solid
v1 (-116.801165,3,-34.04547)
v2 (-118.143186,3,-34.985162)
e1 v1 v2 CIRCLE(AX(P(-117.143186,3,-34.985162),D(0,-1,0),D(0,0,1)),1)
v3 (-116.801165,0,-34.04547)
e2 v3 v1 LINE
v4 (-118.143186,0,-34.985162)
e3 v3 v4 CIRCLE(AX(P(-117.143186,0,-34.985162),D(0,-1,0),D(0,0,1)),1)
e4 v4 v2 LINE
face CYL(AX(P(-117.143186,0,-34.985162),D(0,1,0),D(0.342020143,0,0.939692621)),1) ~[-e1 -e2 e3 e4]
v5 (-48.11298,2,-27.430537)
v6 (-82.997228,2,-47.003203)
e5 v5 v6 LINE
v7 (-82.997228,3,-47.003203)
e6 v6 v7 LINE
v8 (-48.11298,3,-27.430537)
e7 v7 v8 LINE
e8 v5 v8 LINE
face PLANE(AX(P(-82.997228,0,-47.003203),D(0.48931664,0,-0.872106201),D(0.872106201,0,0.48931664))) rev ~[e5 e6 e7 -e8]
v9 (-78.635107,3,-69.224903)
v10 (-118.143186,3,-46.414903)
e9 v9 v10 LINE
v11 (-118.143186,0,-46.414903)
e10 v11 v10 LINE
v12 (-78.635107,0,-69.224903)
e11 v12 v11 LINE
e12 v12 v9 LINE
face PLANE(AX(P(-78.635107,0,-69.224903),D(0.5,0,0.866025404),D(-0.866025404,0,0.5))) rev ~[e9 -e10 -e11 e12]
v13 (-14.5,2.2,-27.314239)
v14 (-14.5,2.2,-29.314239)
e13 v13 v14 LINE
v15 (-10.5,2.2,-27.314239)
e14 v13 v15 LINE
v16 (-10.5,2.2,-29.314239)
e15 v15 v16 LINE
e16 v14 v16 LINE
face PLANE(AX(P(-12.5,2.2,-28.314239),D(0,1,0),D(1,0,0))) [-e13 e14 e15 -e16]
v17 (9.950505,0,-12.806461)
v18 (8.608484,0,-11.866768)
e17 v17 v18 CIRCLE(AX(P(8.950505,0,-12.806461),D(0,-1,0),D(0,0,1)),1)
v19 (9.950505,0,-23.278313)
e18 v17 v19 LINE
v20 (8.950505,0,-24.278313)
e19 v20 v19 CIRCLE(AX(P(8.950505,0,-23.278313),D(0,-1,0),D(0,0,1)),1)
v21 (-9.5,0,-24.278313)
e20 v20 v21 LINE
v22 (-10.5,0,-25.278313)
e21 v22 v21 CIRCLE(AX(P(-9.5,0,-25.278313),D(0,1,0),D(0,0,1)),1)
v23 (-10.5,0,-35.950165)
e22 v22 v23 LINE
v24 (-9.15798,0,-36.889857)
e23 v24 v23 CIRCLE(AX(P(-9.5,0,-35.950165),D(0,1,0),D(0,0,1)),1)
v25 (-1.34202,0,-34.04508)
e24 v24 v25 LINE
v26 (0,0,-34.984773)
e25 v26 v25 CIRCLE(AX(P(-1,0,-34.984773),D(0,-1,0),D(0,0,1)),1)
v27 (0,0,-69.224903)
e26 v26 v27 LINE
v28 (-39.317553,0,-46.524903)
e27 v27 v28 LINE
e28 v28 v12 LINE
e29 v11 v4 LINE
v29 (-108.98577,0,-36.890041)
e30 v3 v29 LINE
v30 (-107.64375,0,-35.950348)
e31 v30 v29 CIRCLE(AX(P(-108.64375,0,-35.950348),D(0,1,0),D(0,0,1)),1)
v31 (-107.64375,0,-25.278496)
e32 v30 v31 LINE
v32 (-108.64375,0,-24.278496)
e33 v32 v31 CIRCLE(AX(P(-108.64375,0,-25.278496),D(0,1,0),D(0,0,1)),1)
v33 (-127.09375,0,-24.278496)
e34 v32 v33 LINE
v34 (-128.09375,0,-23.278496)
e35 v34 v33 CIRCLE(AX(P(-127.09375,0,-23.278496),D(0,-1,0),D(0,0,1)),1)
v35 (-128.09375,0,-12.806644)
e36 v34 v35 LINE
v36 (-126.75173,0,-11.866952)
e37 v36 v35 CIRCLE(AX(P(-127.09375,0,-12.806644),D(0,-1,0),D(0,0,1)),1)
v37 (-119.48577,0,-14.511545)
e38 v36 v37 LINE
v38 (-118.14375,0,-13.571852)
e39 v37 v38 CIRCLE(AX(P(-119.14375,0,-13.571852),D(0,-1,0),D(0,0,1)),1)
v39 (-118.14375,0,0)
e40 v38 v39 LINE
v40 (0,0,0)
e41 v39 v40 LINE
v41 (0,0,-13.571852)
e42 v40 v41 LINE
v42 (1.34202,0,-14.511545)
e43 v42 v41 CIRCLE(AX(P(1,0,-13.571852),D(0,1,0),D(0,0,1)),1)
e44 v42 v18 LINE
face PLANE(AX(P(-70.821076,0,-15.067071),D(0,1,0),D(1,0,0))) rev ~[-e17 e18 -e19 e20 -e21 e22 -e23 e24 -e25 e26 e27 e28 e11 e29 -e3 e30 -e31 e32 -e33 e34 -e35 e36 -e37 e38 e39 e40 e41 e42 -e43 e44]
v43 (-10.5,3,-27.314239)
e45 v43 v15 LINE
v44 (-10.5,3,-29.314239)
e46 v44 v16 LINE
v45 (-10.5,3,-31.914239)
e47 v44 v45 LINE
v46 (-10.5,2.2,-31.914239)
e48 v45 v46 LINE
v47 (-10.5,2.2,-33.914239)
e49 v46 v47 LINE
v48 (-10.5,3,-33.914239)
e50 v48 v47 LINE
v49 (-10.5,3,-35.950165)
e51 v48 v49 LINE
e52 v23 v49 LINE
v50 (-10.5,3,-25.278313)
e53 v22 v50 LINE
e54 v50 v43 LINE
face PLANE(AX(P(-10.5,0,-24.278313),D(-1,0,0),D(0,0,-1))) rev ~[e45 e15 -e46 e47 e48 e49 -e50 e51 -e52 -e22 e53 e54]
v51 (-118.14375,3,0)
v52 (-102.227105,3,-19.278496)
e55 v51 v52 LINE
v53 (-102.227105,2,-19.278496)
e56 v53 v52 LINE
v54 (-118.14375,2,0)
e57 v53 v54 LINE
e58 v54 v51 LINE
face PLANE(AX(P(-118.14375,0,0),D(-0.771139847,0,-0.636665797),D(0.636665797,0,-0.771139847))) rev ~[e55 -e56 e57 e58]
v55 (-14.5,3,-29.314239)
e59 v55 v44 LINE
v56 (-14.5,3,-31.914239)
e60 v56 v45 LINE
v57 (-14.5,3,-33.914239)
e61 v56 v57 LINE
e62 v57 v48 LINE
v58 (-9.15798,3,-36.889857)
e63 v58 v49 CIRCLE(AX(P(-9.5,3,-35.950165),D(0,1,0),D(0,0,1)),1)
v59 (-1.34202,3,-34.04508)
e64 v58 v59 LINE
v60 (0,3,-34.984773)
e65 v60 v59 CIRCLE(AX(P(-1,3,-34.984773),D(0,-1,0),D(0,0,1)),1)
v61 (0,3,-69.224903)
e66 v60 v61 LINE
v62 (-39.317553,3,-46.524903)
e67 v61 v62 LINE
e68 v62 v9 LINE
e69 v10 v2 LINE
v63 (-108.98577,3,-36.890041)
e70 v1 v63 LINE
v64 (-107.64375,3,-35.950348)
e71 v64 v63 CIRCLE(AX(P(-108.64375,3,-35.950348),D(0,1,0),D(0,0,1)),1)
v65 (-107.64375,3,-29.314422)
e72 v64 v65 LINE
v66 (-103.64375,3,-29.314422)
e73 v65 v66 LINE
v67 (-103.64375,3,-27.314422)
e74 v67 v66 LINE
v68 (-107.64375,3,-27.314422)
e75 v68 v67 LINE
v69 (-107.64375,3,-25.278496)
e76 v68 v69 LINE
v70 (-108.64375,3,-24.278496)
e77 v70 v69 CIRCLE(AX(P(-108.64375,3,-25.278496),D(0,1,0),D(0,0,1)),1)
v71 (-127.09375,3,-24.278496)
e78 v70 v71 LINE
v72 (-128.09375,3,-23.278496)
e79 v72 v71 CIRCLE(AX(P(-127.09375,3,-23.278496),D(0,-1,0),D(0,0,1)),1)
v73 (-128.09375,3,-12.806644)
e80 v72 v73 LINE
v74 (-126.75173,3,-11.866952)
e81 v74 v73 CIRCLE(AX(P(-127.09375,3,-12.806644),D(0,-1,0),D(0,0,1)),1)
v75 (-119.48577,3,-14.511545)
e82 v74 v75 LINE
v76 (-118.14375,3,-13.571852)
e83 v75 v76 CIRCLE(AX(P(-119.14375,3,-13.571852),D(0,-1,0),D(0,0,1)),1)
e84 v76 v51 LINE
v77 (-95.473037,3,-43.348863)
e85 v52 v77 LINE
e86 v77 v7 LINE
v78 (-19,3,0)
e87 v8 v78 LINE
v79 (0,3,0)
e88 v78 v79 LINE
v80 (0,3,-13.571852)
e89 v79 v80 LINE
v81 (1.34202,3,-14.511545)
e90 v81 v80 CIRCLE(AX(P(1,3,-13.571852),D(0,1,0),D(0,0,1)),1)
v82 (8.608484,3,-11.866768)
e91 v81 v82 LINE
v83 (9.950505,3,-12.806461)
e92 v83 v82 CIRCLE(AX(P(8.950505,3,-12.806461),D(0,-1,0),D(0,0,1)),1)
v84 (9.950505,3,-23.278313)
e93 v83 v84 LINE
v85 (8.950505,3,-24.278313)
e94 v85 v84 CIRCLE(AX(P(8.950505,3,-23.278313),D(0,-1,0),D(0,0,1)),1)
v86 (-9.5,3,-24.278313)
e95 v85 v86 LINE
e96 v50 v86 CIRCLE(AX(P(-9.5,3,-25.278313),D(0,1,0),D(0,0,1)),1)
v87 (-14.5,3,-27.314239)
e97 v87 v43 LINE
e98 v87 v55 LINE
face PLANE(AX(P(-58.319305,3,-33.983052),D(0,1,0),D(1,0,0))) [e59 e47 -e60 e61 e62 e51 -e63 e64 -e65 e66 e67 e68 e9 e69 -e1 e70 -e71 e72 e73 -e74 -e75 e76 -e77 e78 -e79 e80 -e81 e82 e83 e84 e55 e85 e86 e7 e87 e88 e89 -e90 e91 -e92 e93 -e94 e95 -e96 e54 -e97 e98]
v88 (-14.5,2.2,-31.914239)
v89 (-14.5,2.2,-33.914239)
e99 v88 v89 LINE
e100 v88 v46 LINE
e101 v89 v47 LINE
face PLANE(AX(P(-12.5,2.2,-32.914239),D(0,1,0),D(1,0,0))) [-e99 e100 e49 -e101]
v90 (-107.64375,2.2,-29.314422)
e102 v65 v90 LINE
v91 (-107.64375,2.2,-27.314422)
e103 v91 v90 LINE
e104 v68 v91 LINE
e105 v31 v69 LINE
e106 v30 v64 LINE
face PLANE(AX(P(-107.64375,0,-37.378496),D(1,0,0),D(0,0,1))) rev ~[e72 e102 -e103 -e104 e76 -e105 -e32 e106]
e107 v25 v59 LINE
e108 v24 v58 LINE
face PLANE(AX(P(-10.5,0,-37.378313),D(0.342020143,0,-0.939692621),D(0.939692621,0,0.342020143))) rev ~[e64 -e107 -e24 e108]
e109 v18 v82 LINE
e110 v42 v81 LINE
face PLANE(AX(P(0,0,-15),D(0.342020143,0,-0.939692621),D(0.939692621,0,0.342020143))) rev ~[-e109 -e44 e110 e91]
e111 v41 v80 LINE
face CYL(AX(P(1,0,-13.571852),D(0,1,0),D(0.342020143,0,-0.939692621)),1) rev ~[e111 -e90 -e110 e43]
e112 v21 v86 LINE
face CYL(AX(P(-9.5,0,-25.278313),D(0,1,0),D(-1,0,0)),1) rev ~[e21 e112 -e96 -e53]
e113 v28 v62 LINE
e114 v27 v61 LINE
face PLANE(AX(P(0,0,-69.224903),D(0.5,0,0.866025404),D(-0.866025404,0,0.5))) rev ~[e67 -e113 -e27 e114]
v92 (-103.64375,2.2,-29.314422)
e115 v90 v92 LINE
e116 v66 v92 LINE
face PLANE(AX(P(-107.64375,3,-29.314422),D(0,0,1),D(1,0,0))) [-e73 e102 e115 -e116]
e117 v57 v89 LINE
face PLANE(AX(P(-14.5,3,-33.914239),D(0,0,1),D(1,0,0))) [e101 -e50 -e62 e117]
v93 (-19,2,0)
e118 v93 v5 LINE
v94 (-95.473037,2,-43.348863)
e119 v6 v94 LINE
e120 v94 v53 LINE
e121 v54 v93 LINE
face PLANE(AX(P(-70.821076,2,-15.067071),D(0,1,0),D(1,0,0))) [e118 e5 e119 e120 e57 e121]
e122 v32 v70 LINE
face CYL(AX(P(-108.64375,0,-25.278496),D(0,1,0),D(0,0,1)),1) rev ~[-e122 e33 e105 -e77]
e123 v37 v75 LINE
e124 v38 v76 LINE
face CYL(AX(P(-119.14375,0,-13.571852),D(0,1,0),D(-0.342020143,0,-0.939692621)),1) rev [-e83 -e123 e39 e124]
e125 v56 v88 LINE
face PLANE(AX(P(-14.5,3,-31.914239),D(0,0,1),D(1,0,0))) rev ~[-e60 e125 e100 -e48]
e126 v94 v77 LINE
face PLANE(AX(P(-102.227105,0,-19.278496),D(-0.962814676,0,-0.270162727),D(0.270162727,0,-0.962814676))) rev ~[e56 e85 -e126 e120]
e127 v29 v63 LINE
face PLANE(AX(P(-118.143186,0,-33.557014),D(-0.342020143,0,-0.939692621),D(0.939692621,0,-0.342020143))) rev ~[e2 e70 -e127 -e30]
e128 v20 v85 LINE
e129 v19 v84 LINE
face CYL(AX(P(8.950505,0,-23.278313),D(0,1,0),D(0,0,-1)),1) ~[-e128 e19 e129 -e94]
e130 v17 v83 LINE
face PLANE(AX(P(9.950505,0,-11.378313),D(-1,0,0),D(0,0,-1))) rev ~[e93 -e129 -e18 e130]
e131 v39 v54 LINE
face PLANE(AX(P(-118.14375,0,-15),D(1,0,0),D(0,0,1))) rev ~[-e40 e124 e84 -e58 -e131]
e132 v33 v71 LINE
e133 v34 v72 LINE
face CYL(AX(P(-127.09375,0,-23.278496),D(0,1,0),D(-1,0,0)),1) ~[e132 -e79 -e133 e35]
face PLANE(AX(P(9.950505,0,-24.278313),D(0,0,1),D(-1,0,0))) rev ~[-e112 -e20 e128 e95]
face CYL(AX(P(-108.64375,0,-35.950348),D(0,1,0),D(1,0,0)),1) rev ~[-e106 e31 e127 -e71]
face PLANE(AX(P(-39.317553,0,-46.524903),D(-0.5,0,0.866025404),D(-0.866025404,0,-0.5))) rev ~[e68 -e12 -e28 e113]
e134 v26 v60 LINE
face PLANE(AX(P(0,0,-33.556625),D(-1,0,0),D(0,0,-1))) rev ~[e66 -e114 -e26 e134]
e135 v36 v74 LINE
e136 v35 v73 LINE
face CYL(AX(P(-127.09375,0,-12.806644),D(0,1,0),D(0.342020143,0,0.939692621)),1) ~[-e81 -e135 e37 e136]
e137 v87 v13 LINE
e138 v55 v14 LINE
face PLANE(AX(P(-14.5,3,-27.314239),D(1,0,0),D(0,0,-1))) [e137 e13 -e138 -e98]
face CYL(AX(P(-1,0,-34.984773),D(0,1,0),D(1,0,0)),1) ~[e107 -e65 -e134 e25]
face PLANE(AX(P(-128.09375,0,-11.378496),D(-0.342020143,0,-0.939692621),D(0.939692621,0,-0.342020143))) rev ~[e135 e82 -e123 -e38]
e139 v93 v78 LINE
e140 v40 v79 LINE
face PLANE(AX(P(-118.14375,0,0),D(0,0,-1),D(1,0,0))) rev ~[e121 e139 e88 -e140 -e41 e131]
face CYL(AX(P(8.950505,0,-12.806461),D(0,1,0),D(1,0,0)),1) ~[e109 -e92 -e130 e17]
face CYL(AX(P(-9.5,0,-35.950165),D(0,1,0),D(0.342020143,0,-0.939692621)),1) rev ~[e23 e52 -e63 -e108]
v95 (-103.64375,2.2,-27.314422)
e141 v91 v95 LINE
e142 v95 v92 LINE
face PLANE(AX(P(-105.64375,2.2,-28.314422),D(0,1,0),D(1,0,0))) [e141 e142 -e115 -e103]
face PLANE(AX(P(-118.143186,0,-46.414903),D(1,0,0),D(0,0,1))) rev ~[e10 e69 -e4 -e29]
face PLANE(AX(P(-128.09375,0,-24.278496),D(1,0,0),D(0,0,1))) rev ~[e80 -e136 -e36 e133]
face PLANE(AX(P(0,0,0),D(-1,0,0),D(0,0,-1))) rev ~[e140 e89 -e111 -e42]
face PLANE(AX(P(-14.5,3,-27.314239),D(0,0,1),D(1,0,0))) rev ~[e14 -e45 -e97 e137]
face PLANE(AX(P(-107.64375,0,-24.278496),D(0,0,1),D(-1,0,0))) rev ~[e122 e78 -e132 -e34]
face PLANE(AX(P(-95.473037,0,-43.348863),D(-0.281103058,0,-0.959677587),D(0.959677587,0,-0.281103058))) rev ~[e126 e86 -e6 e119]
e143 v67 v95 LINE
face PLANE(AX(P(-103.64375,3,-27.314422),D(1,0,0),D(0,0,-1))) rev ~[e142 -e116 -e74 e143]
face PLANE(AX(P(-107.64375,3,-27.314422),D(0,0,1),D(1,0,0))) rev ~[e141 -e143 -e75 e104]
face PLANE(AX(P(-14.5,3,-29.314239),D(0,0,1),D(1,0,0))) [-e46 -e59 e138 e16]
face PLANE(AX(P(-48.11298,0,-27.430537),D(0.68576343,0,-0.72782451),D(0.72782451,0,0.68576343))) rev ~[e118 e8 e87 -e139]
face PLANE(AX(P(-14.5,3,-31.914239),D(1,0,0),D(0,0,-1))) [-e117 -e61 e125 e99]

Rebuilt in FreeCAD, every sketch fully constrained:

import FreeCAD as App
import Part
import Sketcher

V = App.Vector
Q = App.Units.Quantity


def edges_at(feature, points):
    """Names of the edges that pass closest to the given points."""
    edges = feature.Shape.Edges
    near = lambda p: min(range(len(edges)), key=lambda i: edges[i].distToShape(Part.Vertex(*p))[0])
    return sorted({f"Edge{near(p) + 1}" for p in points})


def add_polygon(sketch, points):
    """Adds a closed chain of lines whose ends are joined by coincident constraints."""
    first, n = sketch.GeometryCount, len(points)
    for a, b in zip(points, points[1:] + points[:1]):
        sketch.addGeometry(Part.LineSegment(App.Vector(*a, 0), App.Vector(*b, 0)), False)
    for i in range(n):
        sketch.addConstraint(Sketcher.Constraint("Coincident", first + i, 2, first + (i + 1) % n, 1))

doc = App.newDocument("Part")
body = doc.addObject("PartDesign::Body", "Body")

sketch1 = body.newObject("Sketcher::SketchObject", "Sketch")
sketch1.AttachmentSupport = (doc.getObject("XZ_Plane"), [""])
sketch1.MapMode = "FlatFace"
add_polygon(sketch1, [(-118.14375, -15), (-118.14375, 0), (-102.227105, -19.278496), (-95.473037, -43.348863), (-82.997228, -47.003203), (-48.11298, -27.430537), (-19, 0), (0, 0), (0, -15), (9.950505, -11.378313), (9.950505, -24.278313), (-10.5, -24.278313), (-10.5, -37.378313), (0, -33.556625), (0, -69.224903), (-39.317553, -46.524903), (-78.635107, -69.224903), (-118.143186, -46.414903), (-118.143186, -33.557014), (-107.64375, -37.378496), (-107.64375, -24.278496), (-128.09375, -24.278496), (-128.09375, -11.378496)])
sketch1.addConstraint([
    Sketcher.Constraint("Vertical", 0),
    Sketcher.Constraint("Horizontal", 6),
    Sketcher.Constraint("Vertical", 7),
    Sketcher.Constraint("Vertical", 9),
    Sketcher.Constraint("Horizontal", 10),
    Sketcher.Constraint("Vertical", 11),
    Sketcher.Constraint("Vertical", 13),
    Sketcher.Constraint("Vertical", 17),
    Sketcher.Constraint("Vertical", 19),
    Sketcher.Constraint("Horizontal", 20),
    Sketcher.Constraint("Vertical", 21),
    Sketcher.Constraint("Coincident", 6, 2, -1, 1),
    Sketcher.Constraint("PointOnObject", 0, 2, -1),
    Sketcher.Constraint("PointOnObject", 12, 2, -2),
    Sketcher.Constraint("Parallel", 8, 12),
    Sketcher.Constraint("Parallel", 14, 16),
    Sketcher.Constraint("Parallel", 18, 22),
    Sketcher.Constraint("Horizontal", 13, 2, 15, 2),
    Sketcher.Constraint("Horizontal", 7, 2, 22, 2),
    Sketcher.Constraint("Equal", 11, 19),
    Sketcher.Constraint("Equal", 9, 21),
    Sketcher.Constraint("Equal", 1, 2),
    Sketcher.Constraint("Equal", 4, 5),
    Sketcher.Constraint("Equal", 14, 15),
    Sketcher.Constraint("DistanceX", 6, 1, 6, 2, Q("19 mm")),
    Sketcher.Constraint("DistanceY", 0, 1, 0, 2, Q("15 mm")),
    Sketcher.Constraint("Angle", 8, Q("20 deg")),
    Sketcher.Constraint("Angle", 14, Q("150 deg")),
    Sketcher.Constraint("Angle", 18, Q("-20 deg")),
    Sketcher.Constraint("Distance", 1, Q("25 mm")),
    Sketcher.Constraint("Distance", 3, Q("13 mm")),
    Sketcher.Constraint("Distance", 4, Q("40 mm")),
    Sketcher.Constraint("DistanceY", 9, 2, 9, 1, Q("12.9 mm")),
    Sketcher.Constraint("DistanceY", 11, 2, 11, 1, Q("13.1 mm")),
    Sketcher.Constraint("DistanceY", 19, 2, 1, 2, Q("5 mm")),
    Sketcher.Constraint("Distance", 14, Q("45.4 mm")),
    Sketcher.Constraint("DistanceX", 20, 2, 20, 1, Q("20.45 mm")),
    Sketcher.Constraint("DistanceX", 10, 2, -1, 1, Q("10.5 mm")),
    Sketcher.Constraint("DistanceX", 22, 2, 19, 2, Q("10.5 mm")),
    Sketcher.Constraint("Distance", 16, Q("45.62 mm")),
    Sketcher.Constraint("DistanceX", 1, 2, 15, 2, Q("23.591999 mm")),
    Sketcher.Constraint("DistanceY", 17, 1, 17, 2, Q("12.857888 mm")),
    Sketcher.Constraint("DistanceY", 3, 2, 14, 2, Q("0.4783 mm")),
    Sketcher.Constraint("DistanceX", 10, 2, 10, 1, Q("20.450505 mm")),
    Sketcher.Constraint("DistanceX", 3, 2, -1, 1, Q("82.997228 mm")),
])
pad1 = body.newObject("PartDesign::Pad", "Pad")
pad1.Profile = sketch1
pad1.Length = 3
pad1.Reversed = True

sketch2 = body.newObject("Sketcher::SketchObject", "Sketch001")
sketch2.AttachmentSupport = (doc.getObject("XZ_Plane"), [""])
sketch2.MapMode = "FlatFace"
add_polygon(sketch2, [(-102.227105, -19.278496), (-118.14375, 0), (-19, 0), (-48.11298, -27.430537), (-82.997228, -47.003203), (-95.473037, -43.348863)])
sketch2.addConstraint([
    Sketcher.Constraint("Horizontal", 1),
    Sketcher.Constraint("PointOnObject", 0, 2, -1),
    Sketcher.Constraint("Equal", 2, 3),
    Sketcher.Constraint("Equal", 0, 5),
    Sketcher.Constraint("Distance", 0, Q("25 mm")),
    Sketcher.Constraint("Distance", 2, Q("40 mm")),
    Sketcher.Constraint("Distance", 4, Q("13 mm")),
    Sketcher.Constraint("DistanceX", 1, 2, -1, 1, Q("19 mm")),
    Sketcher.Constraint("DistanceX", 1, 1, 1, 2, Q("99.14375 mm")),
    Sketcher.Constraint("DistanceX", 2, 2, -1, 1, Q("48.11298 mm")),
    Sketcher.Constraint("DistanceX", 3, 2, -1, 1, Q("82.997228 mm")),
    Sketcher.Constraint("DistanceX", 4, 2, 3, 2, Q("12.475809 mm")),
])
pad2 = body.newObject("PartDesign::Pad", "Pad001")
pad2.Profile = sketch2
pad2.Length = 2
pad2.Reversed = True
doc.recompute()

fillet = body.newObject("PartDesign::Fillet", "Fillet")
fillet.Base = (pad2, edges_at(pad2, [
    (-10.5, 1.5, -24.278),
    (9.951, 1.5, -24.278),
    (9.951, 1.5, -11.378),
    (0, 1.5, -15),
    (-118.144, 1.5, -15),
    (-128.094, 1.5, -11.378),
    (-128.094, 1.5, -24.278),
    (-107.644, 1.5, -24.278),
    (-107.644, 1.5, -37.378),
    (-118.143, 1.5, -33.557),
    (0, 1.5, -33.557),
    (-10.5, 1.5, -37.378),
]))
fillet.Radius = 1

sketch3 = body.newObject("Sketcher::SketchObject", "Sketch002")
sketch3.AttachmentSupport = (doc.getObject("XZ_Plane"), [""])
sketch3.MapMode = "FlatFace"
sketch3.AttachmentOffset = App.Placement(V(0, 0, -3), App.Rotation())
add_polygon(sketch3, [(-107.64375, -29.314422), (-107.64375, -27.314422), (-103.64375, -27.314422), (-103.64375, -29.314422)])
sketch3.addConstraint([
    Sketcher.Constraint("Vertical", 0),
    Sketcher.Constraint("Horizontal", 1),
    Sketcher.Constraint("Vertical", 2),
    Sketcher.Constraint("Horizontal", 3),
    Sketcher.Constraint("DistanceX", 1, 1, 1, 2, Q("4 mm")),
    Sketcher.Constraint("DistanceY", 0, 1, 0, 2, Q("2 mm")),
    Sketcher.Constraint("DistanceX", 0, 2, -1, 1, Q("107.64375 mm")),
    Sketcher.Constraint("DistanceY", 0, 2, -1, 1, Q("27.314422 mm")),
])
pocket1 = body.newObject("PartDesign::Pocket", "Pocket")
pocket1.Profile = sketch3
pocket1.Length = 0.8
pocket1.Reversed = True

sketch4 = body.newObject("Sketcher::SketchObject", "Sketch003")
sketch4.AttachmentSupport = (doc.getObject("XZ_Plane"), [""])
sketch4.MapMode = "FlatFace"
sketch4.AttachmentOffset = App.Placement(V(0, 0, -3), App.Rotation())
add_polygon(sketch4, [(-14.5, -33.914239), (-14.5, -31.914239), (-10.5, -31.914239), (-10.5, -33.914239)])
add_polygon(sketch4, [(-14.5, -29.314239), (-14.5, -27.314239), (-10.5, -27.314239), (-10.5, -29.314239)])
sketch4.addConstraint([
    Sketcher.Constraint("Vertical", 0),
    Sketcher.Constraint("Horizontal", 1),
    Sketcher.Constraint("Vertical", 2),
    Sketcher.Constraint("Horizontal", 3),
    Sketcher.Constraint("Vertical", 4),
    Sketcher.Constraint("Horizontal", 5),
    Sketcher.Constraint("Vertical", 6),
    Sketcher.Constraint("Horizontal", 7),
    Sketcher.Constraint("Vertical", 3, 2, 4, 2),
    Sketcher.Constraint("Vertical", 2, 2, 5, 2),
    Sketcher.Constraint("Equal", 2, 4),
    Sketcher.Constraint("DistanceX", 1, 1, 1, 2, Q("4 mm")),
    Sketcher.Constraint("DistanceY", 0, 1, 0, 2, Q("2 mm")),
    Sketcher.Constraint("DistanceX", 0, 2, -1, 1, Q("14.5 mm")),
    Sketcher.Constraint("DistanceY", 0, 2, 4, 2, Q("4.6 mm")),
    Sketcher.Constraint("DistanceY", 0, 2, -1, 1, Q("31.914239 mm")),
])
pocket2 = body.newObject("PartDesign::Pocket", "Pocket001")
pocket2.Profile = sketch4
pocket2.Length = 0.8
pocket2.Reversed = True

doc.recompute()
